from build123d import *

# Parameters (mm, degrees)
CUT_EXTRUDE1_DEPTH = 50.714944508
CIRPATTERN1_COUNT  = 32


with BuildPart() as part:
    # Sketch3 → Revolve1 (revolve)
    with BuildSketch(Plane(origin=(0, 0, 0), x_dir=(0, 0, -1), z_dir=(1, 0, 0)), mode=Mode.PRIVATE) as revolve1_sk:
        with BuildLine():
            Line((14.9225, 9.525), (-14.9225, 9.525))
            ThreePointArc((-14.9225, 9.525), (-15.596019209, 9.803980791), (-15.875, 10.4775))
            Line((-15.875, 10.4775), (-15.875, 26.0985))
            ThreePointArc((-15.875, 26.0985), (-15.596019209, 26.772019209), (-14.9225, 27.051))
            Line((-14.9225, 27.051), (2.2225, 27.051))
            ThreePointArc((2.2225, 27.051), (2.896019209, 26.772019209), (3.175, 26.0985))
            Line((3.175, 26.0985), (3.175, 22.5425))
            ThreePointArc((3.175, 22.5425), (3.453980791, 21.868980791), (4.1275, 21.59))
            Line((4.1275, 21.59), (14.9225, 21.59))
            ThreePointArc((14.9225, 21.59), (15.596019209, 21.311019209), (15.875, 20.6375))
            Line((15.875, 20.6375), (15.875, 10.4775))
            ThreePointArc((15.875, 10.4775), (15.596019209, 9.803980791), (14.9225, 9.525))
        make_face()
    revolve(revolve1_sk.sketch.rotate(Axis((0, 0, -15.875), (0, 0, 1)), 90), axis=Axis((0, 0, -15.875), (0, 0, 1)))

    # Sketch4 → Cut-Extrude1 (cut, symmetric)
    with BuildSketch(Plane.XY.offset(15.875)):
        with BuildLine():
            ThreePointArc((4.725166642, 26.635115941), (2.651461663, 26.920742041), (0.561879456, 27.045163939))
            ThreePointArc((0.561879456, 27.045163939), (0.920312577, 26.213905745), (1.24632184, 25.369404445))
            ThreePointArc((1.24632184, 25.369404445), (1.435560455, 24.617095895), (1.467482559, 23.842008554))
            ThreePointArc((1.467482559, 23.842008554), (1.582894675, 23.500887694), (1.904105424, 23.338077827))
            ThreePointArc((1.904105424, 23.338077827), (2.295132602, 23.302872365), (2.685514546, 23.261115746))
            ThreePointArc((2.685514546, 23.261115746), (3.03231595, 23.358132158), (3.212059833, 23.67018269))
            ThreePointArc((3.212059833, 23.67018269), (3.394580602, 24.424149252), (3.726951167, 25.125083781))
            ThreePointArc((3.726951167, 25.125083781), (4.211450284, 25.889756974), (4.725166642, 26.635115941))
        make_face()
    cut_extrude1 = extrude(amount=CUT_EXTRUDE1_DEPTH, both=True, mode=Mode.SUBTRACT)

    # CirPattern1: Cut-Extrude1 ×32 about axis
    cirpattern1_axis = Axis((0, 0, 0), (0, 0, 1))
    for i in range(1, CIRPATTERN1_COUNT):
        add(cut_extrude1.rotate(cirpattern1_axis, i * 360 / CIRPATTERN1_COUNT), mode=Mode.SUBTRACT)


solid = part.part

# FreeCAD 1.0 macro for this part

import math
import FreeCAD as App
import Part
import Sketcher
from FreeCAD import Vector
Q = App.Units.Quantity

doc = App.newDocument("Part")
body = doc.addObject("PartDesign::Body", "Body")

# Sketch on YZ plane
sketch1 = doc.addObject("Sketcher::SketchObject", "Sketch")
body.addObject(sketch1)
sketch1.AttachmentSupport = (doc.YZ_Plane, [""])
sketch1.MapMode = "FlatFace"
sketch1.addGeometry([
    Part.LineSegment(Vector(9.5, 14.9, 0), Vector(9.5, -14.9, 0)),  # 0
    Part.ArcOfCircle(Part.Circle(Vector(10.5, -14.9, 0), Vector(0, 0, 1), 1), math.radians(180), math.radians(270)),  # 1
    Part.LineSegment(Vector(10.5, -15.9, 0), Vector(20.6, -15.9, 0)),  # 2
    Part.ArcOfCircle(Part.Circle(Vector(20.6, -14.9, 0), Vector(0, 0, 1), 1), math.radians(-90), math.radians(0)),  # 3
    Part.LineSegment(Vector(21.6, -14.9, 0), Vector(21.6, -4.1, 0)),  # 4
    Part.ArcOfCircle(Part.Circle(Vector(22.5, -4.1, 0), Vector(0, 0, 1), 1), math.radians(90), math.radians(180)),  # 5
    Part.LineSegment(Vector(22.5, -3.2, 0), Vector(26.1, -3.2, 0)),  # 6
    Part.ArcOfCircle(Part.Circle(Vector(26.1, -2.2, 0), Vector(0, 0, 1), 1), math.radians(-90), math.radians(0)),  # 7
    Part.LineSegment(Vector(27.1, -2.2, 0), Vector(27.1, 14.9, 0)),  # 8
    Part.ArcOfCircle(Part.Circle(Vector(26.1, 14.9, 0), Vector(0, 0, 1), 1), math.radians(0), math.radians(90)),  # 9
    Part.LineSegment(Vector(26.1, 15.9, 0), Vector(10.5, 15.9, 0)),  # 10
    Part.ArcOfCircle(Part.Circle(Vector(10.5, 14.9, 0), Vector(0, 0, 1), 1), math.radians(90), math.radians(180)),  # 11
], False)
sketch1.addConstraint([
    Sketcher.Constraint("Tangent", 0, 2, 1, 1),
    Sketcher.Constraint("Tangent", 1, 2, 2, 1),
    Sketcher.Constraint("Tangent", 2, 2, 3, 1),
    Sketcher.Constraint("Tangent", 3, 2, 4, 1),
    Sketcher.Constraint("Tangent", 4, 2, 5, 2),
    Sketcher.Constraint("Tangent", 5, 1, 6, 1),
    Sketcher.Constraint("Tangent", 6, 2, 7, 1),
    Sketcher.Constraint("Tangent", 7, 2, 8, 1),
    Sketcher.Constraint("Tangent", 8, 2, 9, 1),
    Sketcher.Constraint("Tangent", 9, 2, 10, 1),
    Sketcher.Constraint("Tangent", 10, 2, 11, 1),
    Sketcher.Constraint("Tangent", 11, 2, 0, 1),
    Sketcher.Constraint("Vertical", 0),
    Sketcher.Constraint("Horizontal", 2),
    Sketcher.Constraint("Vertical", 4),
    Sketcher.Constraint("Horizontal", 6),
    Sketcher.Constraint("Vertical", 8),
    Sketcher.Constraint("Horizontal", 10),
    Sketcher.Constraint("Equal", 1, 3),
    Sketcher.Constraint("Equal", 3, 5),
    Sketcher.Constraint("Equal", 5, 7),
    Sketcher.Constraint("Equal", 7, 9),
    Sketcher.Constraint("Equal", 9, 11),
    Sketcher.Constraint("DistanceX", 2, 1, 2, 2, Q("0.4 in")),
    Sketcher.Constraint("DistanceX", 6, 1, 6, 2, Q("0.14 in")),
    Sketcher.Constraint("Radius", 1, Q("0.0375 in")),
    Sketcher.Constraint("DistanceY", 3, 3, 7, 3, Q("0.5 in")),
    Sketcher.Constraint("DistanceY", 0, 2, 0, 1, Q("1.175 in")),
    Sketcher.Constraint("DistanceX", -1, 1, 3, 2, Q("0.85 in")),
    Sketcher.Constraint("DistanceY", 1, 2, -1, 1, Q("0.625 in")),
])
revolution = doc.addObject("PartDesign::Revolution", "Revolution")
body.addObject(revolution)
revolution.Profile = sketch1
revolution.ReferenceAxis = (sketch1, ["V_Axis"])
revolution.Angle = 360

# Sketch on XY plane
sketch2 = doc.addObject("Sketcher::SketchObject", "Sketch001")
body.addObject(sketch2)
sketch2.AttachmentSupport = (doc.XY_Plane, [""])
sketch2.MapMode = "FlatFace"
sketch2.AttachmentOffset = App.Placement(Vector(0, 0, 0.625 * 25.4), App.Rotation())
sketch2.addGeometry([
    Part.ArcOfCircle(Part.Circle(Vector(0, 0, 0), Vector(0, 0, 1), 27.05), math.radians(79.94), math.radians(88.81)),  # 0
    Part.ArcOfCircle(Part.Circle(Vector(-20.74, 17.37, 0), Vector(0, 0, 1), 23.4), math.radians(20), math.radians(24.43)),  # 1
    Part.ArcOfCircle(Part.Circle(Vector(-2.31, 24.07, 0), Vector(0, 0, 1), 3.79), math.radians(-4), math.radians(20)),  # 2
    Part.ArcOfCircle(Part.Circle(Vector(1.94, 23.81, 0), Vector(0, 0, 1), 0.48), math.radians(176), math.radians(265)),  # 3
    Part.ArcOfCircle(Part.Circle(Vector(0, 0, 0), Vector(0, 0, 1), 23.42), math.radians(83.41), math.radians(85.34)),  # 4
    Part.ArcOfCircle(Part.Circle(Vector(2.74, 23.73, 0), Vector(0, 0, 1), 0.48), math.radians(-97), math.radians(-8)),  # 5
    Part.ArcOfCircle(Part.Circle(Vector(6.96, 23.16, 0), Vector(0, 0, 1), 3.79), math.radians(149), math.radians(172)),  # 6
    Part.ArcOfCircle(Part.Circle(Vector(23.73, 12.99, 0), Vector(0, 0, 1), 23.4), math.radians(144.32), math.radians(148.75)),  # 7
], False)
sketch2.addConstraint([
    Sketcher.Constraint("Coincident", 0, 2, 1, 2),
    Sketcher.Constraint("Tangent", 1, 1, 2, 2),
    Sketcher.Constraint("Tangent", 2, 1, 3, 1),
    Sketcher.Constraint("Tangent", 3, 2, 4, 2),
    Sketcher.Constraint("Tangent", 4, 1, 5, 1),
    Sketcher.Constraint("Tangent", 5, 2, 6, 2),
    Sketcher.Constraint("Tangent", 6, 1, 7, 2),
    Sketcher.Constraint("Coincident", 7, 1, 0, 1),
    Sketcher.Constraint("Coincident", 0, 3, -1, 1),
    Sketcher.Constraint("Coincident", 4, 3, -1, 1),
    Sketcher.Constraint("Equal", 3, 5),
    Sketcher.Constraint("Equal", 2, 6),
    Sketcher.Constraint("Equal", 1, 7),
    Sketcher.Constraint("Radius", 0, Q("1.065 in")),
    Sketcher.Constraint("Radius", 4, Q("0.921875 in")),
    Sketcher.Constraint("Radius", 1, 23.397171),
    Sketcher.Constraint("Radius", 3, 0.47625),
    Sketcher.Constraint("Radius", 2, 3.785798),
    Sketcher.Constraint("DistanceY", 5, 3, 2, 3, Q("0.0134001 in")),
    Sketcher.Constraint("DistanceX", 6, 1, 7, 1, Q("0.0392998 in")),
    Sketcher.Constraint("DistanceY", -1, 1, 1, 3, 17.3671),
    Sketcher.Constraint("DistanceX", 2, 3, 5, 3, 5.0513),
    Sketcher.Constraint("DistanceY", 5, 2, 6, 1, 1.454901),
    Sketcher.Constraint("DistanceY", -1, 1, 3, 3, 23.812751),
])
pocket1 = doc.addObject("PartDesign::Pocket", "Pocket")
body.addObject(pocket1)
pocket1.Profile = sketch2
pocket1.Length = 101.429889
pocket1.Midplane = True
doc.recompute()

polarpattern = doc.addObject("PartDesign::PolarPattern", "PolarPattern")
body.addObject(polarpattern)
polarpattern.Originals = [pocket1]
polarpattern.Axis = (doc.Z_Axis, [""])
polarpattern.Angle = 360
polarpattern.Occurrences = 32
body.Tip = polarpattern

doc.recompute()
